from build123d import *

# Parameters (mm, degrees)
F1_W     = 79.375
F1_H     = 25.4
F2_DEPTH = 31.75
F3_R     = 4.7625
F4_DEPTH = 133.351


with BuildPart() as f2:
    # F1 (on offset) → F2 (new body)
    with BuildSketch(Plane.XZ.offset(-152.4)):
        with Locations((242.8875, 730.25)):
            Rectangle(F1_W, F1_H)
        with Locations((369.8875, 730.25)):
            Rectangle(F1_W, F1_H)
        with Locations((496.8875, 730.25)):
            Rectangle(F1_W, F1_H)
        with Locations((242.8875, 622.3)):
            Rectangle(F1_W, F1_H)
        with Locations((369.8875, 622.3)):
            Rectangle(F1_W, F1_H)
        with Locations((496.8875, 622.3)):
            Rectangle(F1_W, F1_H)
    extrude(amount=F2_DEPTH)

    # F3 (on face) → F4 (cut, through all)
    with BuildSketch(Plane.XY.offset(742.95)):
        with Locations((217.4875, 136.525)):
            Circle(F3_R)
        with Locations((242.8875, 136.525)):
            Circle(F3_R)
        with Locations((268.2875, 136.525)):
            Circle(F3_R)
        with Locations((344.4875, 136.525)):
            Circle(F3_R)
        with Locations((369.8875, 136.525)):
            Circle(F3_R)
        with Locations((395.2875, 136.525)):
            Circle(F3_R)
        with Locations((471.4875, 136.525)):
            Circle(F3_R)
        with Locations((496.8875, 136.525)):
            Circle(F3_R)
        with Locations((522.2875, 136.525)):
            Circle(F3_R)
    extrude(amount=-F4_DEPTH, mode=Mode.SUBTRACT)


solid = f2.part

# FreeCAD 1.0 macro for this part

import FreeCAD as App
import Part
import Sketcher
Q = App.Units.Quantity


def add_polygon(sketch, points):
    """Adds a closed chain of lines whose ends are joined by coincident constraints."""
    first, n = sketch.GeometryCount, len(points)
    for a, b in zip(points, points[1:] + points[:1]):
        sketch.addGeometry(Part.LineSegment(App.Vector(*a, 0), App.Vector(*b, 0)), False)
    for i in range(n):
        sketch.addConstraint(Sketcher.Constraint("Coincident", first + i, 2, first + (i + 1) % n, 1))

doc = App.newDocument("Part")
body = doc.addObject("PartDesign::Body", "Body")
body.AllowCompound = True

sketch1 = body.newObject("Sketcher::SketchObject", "Sketch")
sketch1.AttachmentSupport = (doc.getObject("XZ_Plane"), [""])
sketch1.MapMode = "FlatFace"
sketch1.AttachmentOffset = App.Placement(App.Vector(0, 0, -6 * 25.4), App.Rotation())
add_polygon(sketch1, [(203, 743), (203, 718), (283, 718), (283, 743)])
add_polygon(sketch1, [(330, 743), (330, 718), (410, 718), (410, 743)])
add_polygon(sketch1, [(457, 743), (457, 718), (537, 718), (537, 743)])
add_polygon(sketch1, [(203, 635), (203, 610), (283, 610), (283, 635)])
add_polygon(sketch1, [(330, 635), (330, 610), (410, 610), (410, 635)])
add_polygon(sketch1, [(457, 635), (457, 610), (537, 610), (537, 635)])
sketch1.addConstraint(Sketcher.Constraint("Vertical", 0))
sketch1.addConstraint(Sketcher.Constraint("Horizontal", 1))
sketch1.addConstraint(Sketcher.Constraint("Vertical", 2))
sketch1.addConstraint(Sketcher.Constraint("Horizontal", 3))
sketch1.addConstraint(Sketcher.Constraint("Vertical", 4))
sketch1.addConstraint(Sketcher.Constraint("Horizontal", 5))
sketch1.addConstraint(Sketcher.Constraint("Vertical", 6))
sketch1.addConstraint(Sketcher.Constraint("Horizontal", 7))
sketch1.addConstraint(Sketcher.Constraint("Vertical", 8))
sketch1.addConstraint(Sketcher.Constraint("Horizontal", 9))
sketch1.addConstraint(Sketcher.Constraint("Vertical", 10))
sketch1.addConstraint(Sketcher.Constraint("Horizontal", 11))
sketch1.addConstraint(Sketcher.Constraint("Vertical", 12))
sketch1.addConstraint(Sketcher.Constraint("Horizontal", 13))
sketch1.addConstraint(Sketcher.Constraint("Vertical", 14))
sketch1.addConstraint(Sketcher.Constraint("Horizontal", 15))
sketch1.addConstraint(Sketcher.Constraint("Vertical", 16))
sketch1.addConstraint(Sketcher.Constraint("Horizontal", 17))
sketch1.addConstraint(Sketcher.Constraint("Vertical", 18))
sketch1.addConstraint(Sketcher.Constraint("Horizontal", 19))
sketch1.addConstraint(Sketcher.Constraint("Vertical", 20))
sketch1.addConstraint(Sketcher.Constraint("Horizontal", 21))
sketch1.addConstraint(Sketcher.Constraint("Vertical", 22))
sketch1.addConstraint(Sketcher.Constraint("Horizontal", 23))
sketch1.addConstraint(Sketcher.Constraint("Horizontal", 1, 2, 4, 2))
sketch1.addConstraint(Sketcher.Constraint("Horizontal", 3, 2, 6, 2))
sketch1.addConstraint(Sketcher.Constraint("Horizontal", 5, 2, 8, 2))
sketch1.addConstraint(Sketcher.Constraint("Horizontal", 7, 2, 10, 2))
sketch1.addConstraint(Sketcher.Constraint("Horizontal", 13, 2, 16, 2))
sketch1.addConstraint(Sketcher.Constraint("Horizontal", 15, 2, 18, 2))
sketch1.addConstraint(Sketcher.Constraint("Horizontal", 17, 2, 20, 2))
sketch1.addConstraint(Sketcher.Constraint("Horizontal", 19, 2, 22, 2))
sketch1.addConstraint(Sketcher.Constraint("Vertical", 3, 2, 12, 2))
sketch1.addConstraint(Sketcher.Constraint("Vertical", 2, 2, 13, 2))
sketch1.addConstraint(Sketcher.Constraint("Vertical", 7, 2, 16, 2))
sketch1.addConstraint(Sketcher.Constraint("Vertical", 6, 2, 17, 2))
sketch1.addConstraint(Sketcher.Constraint("Vertical", 11, 2, 20, 2))
sketch1.addConstraint(Sketcher.Constraint("Vertical", 10, 2, 21, 2))
sketch1.addConstraint(Sketcher.Constraint("Equal", 3, 5))
sketch1.addConstraint(Sketcher.Constraint("Equal", 7, 9))
sketch1.addConstraint(Sketcher.Constraint("Equal", 10, 12))
sketch1.addConstraint(Sketcher.Constraint("DistanceY", 0, 2, 0, 1, Q("1 in")))
sketch1.addConstraint(Sketcher.Constraint("DistanceX", -1, 1, 0, 2, Q("8 in")))
sketch1.addConstraint(Sketcher.Constraint("DistanceX", -1, 1, 4, 2, Q("13 in")))
sketch1.addConstraint(Sketcher.Constraint("DistanceX", -1, 1, 8, 2, Q("18 in")))
sketch1.addConstraint(Sketcher.Constraint("DistanceY", -1, 1, 12, 2, Q("24 in")))
sketch1.addConstraint(Sketcher.Constraint("DistanceX", 1, 1, 1, 2, Q("3.125 in")))
sketch1.addConstraint(Sketcher.Constraint("DistanceY", -1, 1, 0, 2, Q("28.25 in")))
pad1 = body.newObject("PartDesign::Pad", "Pad")
pad1.Profile = sketch1
pad1.Length = Q("1.25 in")

sketch2 = body.newObject("Sketcher::SketchObject", "Sketch001")
sketch2.AttachmentSupport = (doc.getObject("XY_Plane"), [""])
sketch2.MapMode = "FlatFace"
sketch2.AttachmentOffset = App.Placement(App.Vector(0, 0, 29.25 * 25.4), App.Rotation())
sketch2.addGeometry(Part.Circle(App.Vector(217.5, 136.5, 0), App.Vector(0, 0, 1), 4.8), False)
sketch2.addGeometry(Part.Circle(App.Vector(242.9, 136.5, 0), App.Vector(0, 0, 1), 4.8), False)
sketch2.addGeometry(Part.Circle(App.Vector(268.3, 136.5, 0), App.Vector(0, 0, 1), 4.8), False)
sketch2.addGeometry(Part.Circle(App.Vector(344.5, 136.5, 0), App.Vector(0, 0, 1), 4.8), False)
sketch2.addGeometry(Part.Circle(App.Vector(369.9, 136.5, 0), App.Vector(0, 0, 1), 4.8), False)
sketch2.addGeometry(Part.Circle(App.Vector(395.3, 136.5, 0), App.Vector(0, 0, 1), 4.8), False)
sketch2.addGeometry(Part.Circle(App.Vector(471.5, 136.5, 0), App.Vector(0, 0, 1), 4.8), False)
sketch2.addGeometry(Part.Circle(App.Vector(496.9, 136.5, 0), App.Vector(0, 0, 1), 4.8), False)
sketch2.addGeometry(Part.Circle(App.Vector(522.3, 136.5, 0), App.Vector(0, 0, 1), 4.8), False)
sketch2.addConstraint(Sketcher.Constraint("Equal", 0, 1))
sketch2.addConstraint(Sketcher.Constraint("Equal", 1, 2))
sketch2.addConstraint(Sketcher.Constraint("Equal", 2, 3))
sketch2.addConstraint(Sketcher.Constraint("Equal", 3, 4))
sketch2.addConstraint(Sketcher.Constraint("Equal", 4, 5))
sketch2.addConstraint(Sketcher.Constraint("Equal", 5, 6))
sketch2.addConstraint(Sketcher.Constraint("Equal", 6, 7))
sketch2.addConstraint(Sketcher.Constraint("Equal", 7, 8))
sketch2.addConstraint(Sketcher.Constraint("Horizontal", 0, 3, 1, 3))
sketch2.addConstraint(Sketcher.Constraint("Horizontal", 1, 3, 2, 3))
sketch2.addConstraint(Sketcher.Constraint("Horizontal", 2, 3, 3, 3))
sketch2.addConstraint(Sketcher.Constraint("Horizontal", 3, 3, 4, 3))
sketch2.addConstraint(Sketcher.Constraint("Horizontal", 4, 3, 5, 3))
sketch2.addConstraint(Sketcher.Constraint("Horizontal", 5, 3, 6, 3))
sketch2.addConstraint(Sketcher.Constraint("Horizontal", 6, 3, 7, 3))
sketch2.addConstraint(Sketcher.Constraint("Horizontal", 7, 3, 8, 3))
sketch2.addConstraint(Sketcher.Constraint("Diameter", 0, Q("0.375 in")))
sketch2.addConstraint(Sketcher.Constraint("DistanceX", 0, 3, 1, 3, Q("1 in")))
sketch2.addConstraint(Sketcher.Constraint("DistanceX", 1, 3, 2, 3, Q("1 in")))
sketch2.addConstraint(Sketcher.Constraint("DistanceX", 2, 3, 3, 3, Q("3 in")))
sketch2.addConstraint(Sketcher.Constraint("DistanceX", 3, 3, 4, 3, Q("1 in")))
sketch2.addConstraint(Sketcher.Constraint("DistanceX", 4, 3, 5, 3, Q("1 in")))
sketch2.addConstraint(Sketcher.Constraint("DistanceX", 5, 3, 6, 3, Q("3 in")))
sketch2.addConstraint(Sketcher.Constraint("DistanceX", 6, 3, 7, 3, Q("1 in")))
sketch2.addConstraint(Sketcher.Constraint("DistanceX", 7, 3, 8, 3, Q("1 in")))
sketch2.addConstraint(Sketcher.Constraint("DistanceX", -1, 1, 0, 3, Q("8.5625 in")))
sketch2.addConstraint(Sketcher.Constraint("DistanceY", -1, 1, 0, 3, Q("5.375 in")))
pocket1 = body.newObject("PartDesign::Pocket", "Pocket")
pocket1.Profile = sketch2
pocket1.Type = "ThroughAll"

doc.recompute()
